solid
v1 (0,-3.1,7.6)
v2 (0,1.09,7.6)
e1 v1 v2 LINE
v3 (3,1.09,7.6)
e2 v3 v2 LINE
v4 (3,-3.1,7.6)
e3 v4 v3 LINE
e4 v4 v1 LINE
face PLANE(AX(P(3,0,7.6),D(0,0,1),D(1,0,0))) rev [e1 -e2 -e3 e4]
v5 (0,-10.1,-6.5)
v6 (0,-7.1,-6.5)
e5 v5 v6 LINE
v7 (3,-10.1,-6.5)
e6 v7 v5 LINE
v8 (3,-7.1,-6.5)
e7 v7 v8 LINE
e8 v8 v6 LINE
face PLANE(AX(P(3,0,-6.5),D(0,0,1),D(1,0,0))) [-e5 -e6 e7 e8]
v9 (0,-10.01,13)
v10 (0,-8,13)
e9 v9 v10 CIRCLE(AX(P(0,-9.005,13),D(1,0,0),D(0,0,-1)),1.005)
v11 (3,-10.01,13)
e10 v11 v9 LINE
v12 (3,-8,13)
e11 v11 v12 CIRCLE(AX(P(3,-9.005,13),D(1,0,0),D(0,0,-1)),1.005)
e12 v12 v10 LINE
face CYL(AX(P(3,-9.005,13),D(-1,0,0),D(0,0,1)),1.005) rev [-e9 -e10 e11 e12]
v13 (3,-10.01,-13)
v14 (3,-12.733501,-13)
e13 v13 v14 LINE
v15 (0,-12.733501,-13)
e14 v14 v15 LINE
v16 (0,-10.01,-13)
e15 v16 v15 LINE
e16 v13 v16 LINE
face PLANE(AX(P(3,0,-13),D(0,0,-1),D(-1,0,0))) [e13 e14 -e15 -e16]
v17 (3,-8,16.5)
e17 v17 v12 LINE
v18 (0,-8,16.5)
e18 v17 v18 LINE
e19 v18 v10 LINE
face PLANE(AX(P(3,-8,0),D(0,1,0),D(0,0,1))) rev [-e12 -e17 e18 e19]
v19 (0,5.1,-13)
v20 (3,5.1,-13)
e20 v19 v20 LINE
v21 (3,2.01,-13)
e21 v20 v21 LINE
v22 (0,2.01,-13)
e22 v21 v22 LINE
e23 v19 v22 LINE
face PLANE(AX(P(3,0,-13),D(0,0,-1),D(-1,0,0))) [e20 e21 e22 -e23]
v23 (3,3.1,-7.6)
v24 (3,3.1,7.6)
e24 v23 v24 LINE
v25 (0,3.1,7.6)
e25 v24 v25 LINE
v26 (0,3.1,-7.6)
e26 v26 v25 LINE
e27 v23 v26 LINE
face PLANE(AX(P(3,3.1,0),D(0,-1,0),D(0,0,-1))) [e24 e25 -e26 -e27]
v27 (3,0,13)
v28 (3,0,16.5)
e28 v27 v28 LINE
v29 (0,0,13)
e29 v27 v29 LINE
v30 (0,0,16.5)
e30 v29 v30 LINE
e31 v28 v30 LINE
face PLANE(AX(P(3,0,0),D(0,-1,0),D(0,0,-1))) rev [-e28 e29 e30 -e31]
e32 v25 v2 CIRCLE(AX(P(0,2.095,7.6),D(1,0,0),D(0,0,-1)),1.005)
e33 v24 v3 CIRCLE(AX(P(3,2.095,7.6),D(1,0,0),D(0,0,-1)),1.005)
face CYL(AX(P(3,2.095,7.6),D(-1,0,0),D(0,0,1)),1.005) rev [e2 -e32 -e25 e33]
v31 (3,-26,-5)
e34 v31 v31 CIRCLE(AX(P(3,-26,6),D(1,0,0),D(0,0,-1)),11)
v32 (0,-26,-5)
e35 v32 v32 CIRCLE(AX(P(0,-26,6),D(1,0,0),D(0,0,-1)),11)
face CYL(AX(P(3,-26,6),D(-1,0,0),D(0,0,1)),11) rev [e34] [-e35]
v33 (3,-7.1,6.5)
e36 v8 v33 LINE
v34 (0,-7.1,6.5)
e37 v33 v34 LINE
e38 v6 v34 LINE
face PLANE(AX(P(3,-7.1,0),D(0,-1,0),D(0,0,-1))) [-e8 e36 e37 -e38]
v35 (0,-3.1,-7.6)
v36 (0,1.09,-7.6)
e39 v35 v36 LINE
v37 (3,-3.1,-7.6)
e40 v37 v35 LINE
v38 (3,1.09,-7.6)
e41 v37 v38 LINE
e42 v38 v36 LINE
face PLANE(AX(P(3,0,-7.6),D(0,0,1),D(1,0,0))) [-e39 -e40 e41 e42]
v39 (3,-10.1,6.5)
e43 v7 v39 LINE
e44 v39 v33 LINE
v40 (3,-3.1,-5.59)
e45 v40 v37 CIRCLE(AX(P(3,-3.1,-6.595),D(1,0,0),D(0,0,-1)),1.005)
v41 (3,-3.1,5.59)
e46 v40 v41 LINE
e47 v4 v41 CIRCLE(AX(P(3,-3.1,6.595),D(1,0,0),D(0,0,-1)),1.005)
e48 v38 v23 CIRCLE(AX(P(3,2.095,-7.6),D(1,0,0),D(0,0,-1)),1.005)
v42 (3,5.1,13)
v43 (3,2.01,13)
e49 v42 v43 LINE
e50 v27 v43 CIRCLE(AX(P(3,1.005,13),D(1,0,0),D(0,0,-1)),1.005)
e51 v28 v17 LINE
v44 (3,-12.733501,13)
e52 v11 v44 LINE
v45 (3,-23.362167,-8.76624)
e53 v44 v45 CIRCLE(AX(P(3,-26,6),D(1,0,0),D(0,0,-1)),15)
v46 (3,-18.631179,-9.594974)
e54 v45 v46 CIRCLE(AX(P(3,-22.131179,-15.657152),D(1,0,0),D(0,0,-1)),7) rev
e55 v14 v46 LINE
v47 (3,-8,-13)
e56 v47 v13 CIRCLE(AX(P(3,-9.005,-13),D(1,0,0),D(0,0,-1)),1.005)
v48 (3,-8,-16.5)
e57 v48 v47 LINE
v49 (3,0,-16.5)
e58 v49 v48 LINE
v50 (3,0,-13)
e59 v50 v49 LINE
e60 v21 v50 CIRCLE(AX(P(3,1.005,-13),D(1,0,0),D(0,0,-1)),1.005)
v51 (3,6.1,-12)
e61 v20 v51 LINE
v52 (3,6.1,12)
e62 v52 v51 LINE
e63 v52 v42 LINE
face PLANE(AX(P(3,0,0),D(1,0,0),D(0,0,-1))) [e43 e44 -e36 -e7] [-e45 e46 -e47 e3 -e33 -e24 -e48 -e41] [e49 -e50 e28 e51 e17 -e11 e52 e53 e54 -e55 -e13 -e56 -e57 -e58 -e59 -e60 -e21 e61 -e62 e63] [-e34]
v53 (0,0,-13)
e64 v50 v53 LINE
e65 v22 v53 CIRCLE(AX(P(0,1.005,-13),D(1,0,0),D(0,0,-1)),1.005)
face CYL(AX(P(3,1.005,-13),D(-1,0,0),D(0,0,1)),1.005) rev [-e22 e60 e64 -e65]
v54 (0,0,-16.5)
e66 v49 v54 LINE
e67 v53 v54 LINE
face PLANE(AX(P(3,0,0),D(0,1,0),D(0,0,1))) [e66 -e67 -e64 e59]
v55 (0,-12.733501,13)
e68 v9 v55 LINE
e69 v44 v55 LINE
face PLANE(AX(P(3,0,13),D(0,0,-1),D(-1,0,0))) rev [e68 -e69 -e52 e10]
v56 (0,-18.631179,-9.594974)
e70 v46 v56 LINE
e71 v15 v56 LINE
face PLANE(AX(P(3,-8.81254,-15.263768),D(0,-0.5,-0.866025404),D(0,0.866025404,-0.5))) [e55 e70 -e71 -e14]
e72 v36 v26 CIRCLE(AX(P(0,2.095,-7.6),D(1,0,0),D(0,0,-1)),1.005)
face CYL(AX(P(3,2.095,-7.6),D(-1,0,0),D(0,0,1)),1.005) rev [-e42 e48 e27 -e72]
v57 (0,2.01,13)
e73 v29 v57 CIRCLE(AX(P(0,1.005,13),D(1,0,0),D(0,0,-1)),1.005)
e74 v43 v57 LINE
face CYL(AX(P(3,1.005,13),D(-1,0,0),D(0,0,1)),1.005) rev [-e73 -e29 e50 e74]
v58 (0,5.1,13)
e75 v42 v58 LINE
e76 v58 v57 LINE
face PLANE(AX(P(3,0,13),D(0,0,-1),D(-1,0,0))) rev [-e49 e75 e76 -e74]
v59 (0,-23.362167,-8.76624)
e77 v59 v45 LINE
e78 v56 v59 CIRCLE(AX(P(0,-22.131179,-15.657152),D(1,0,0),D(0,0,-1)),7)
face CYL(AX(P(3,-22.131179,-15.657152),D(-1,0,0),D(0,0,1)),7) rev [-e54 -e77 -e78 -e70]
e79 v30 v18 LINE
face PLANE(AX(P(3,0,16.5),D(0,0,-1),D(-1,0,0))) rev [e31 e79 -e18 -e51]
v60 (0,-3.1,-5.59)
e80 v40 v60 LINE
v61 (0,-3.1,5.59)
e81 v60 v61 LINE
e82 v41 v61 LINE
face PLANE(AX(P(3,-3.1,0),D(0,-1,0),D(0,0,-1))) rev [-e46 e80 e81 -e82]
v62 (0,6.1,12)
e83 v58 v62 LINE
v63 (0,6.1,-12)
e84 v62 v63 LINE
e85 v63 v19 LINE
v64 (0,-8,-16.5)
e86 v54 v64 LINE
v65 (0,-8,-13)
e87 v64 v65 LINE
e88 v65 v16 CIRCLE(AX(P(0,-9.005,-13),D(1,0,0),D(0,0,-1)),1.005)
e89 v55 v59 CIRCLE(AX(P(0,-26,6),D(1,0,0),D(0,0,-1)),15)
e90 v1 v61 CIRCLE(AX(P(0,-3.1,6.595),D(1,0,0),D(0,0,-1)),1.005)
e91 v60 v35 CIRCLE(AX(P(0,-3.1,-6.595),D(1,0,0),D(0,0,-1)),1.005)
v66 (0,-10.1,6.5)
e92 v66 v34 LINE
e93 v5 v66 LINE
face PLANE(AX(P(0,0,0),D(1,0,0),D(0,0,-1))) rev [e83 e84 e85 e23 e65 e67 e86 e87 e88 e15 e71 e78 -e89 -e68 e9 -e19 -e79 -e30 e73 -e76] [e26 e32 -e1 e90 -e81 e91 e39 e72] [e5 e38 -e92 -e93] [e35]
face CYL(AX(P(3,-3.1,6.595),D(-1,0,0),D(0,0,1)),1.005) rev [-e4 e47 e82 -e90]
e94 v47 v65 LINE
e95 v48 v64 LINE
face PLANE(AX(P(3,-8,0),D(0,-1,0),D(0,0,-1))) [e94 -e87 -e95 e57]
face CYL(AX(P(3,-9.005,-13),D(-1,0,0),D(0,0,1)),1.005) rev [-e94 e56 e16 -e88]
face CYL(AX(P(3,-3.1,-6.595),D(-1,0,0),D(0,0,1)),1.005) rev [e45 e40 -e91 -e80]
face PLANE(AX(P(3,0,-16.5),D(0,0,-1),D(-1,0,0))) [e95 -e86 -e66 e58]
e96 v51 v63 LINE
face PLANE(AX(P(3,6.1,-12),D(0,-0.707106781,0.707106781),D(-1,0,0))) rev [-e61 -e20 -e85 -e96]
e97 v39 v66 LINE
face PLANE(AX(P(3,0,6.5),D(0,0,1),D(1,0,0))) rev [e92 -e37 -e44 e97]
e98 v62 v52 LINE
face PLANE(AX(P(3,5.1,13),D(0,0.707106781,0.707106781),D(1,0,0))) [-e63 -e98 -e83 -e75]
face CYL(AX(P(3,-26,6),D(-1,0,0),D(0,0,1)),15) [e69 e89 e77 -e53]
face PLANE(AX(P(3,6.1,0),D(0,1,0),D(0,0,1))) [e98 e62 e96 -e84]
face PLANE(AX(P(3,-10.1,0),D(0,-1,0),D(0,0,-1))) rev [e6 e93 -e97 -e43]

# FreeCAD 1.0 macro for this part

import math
import FreeCAD as App
import Part
import Sketcher
from FreeCAD import Vector
Q = App.Units.Quantity


def edges_at(feature, points):
    """Names of the edges that pass closest to the given points."""
    edges = feature.Shape.Edges
    near = lambda p: min(range(len(edges)), key=lambda i: edges[i].distToShape(Part.Vertex(*p))[0])
    return sorted({f"Edge{near(p) + 1}" for p in points})


def add_polygon(sketch, points):
    """Adds a closed chain of lines whose ends are joined by coincident constraints."""
    first, n = sketch.GeometryCount, len(points)
    for a, b in zip(points, points[1:] + points[:1]):
        sketch.addGeometry(Part.LineSegment(App.Vector(*a, 0), App.Vector(*b, 0)), False)
    for i in range(n):
        sketch.addConstraint(Sketcher.Constraint("Coincident", first + i, 2, first + (i + 1) % n, 1))

doc = App.newDocument("Part")
body = doc.addObject("PartDesign::Body", "Body")

# Sketch on YZ plane
sketch1 = doc.addObject("Sketcher::SketchObject", "Sketch")
body.addObject(sketch1)
sketch1.AttachmentSupport = (doc.YZ_Plane, [""])
sketch1.MapMode = "FlatFace"
sketch1.addGeometry(Part.LineSegment(Vector(6.1, -13, 0), Vector(6.1, 13, 0)), False)  # 0
sketch1.addGeometry(Part.LineSegment(Vector(6.1, 13, 0), Vector(2, 13, 0)), False)  # 1
sketch1.addGeometry(Part.ArcOfCircle(Part.Circle(Vector(1, 13, 0), Vector(0, 0, 1), 1), math.radians(-90), math.radians(0)), False)  # 2
sketch1.addGeometry(Part.ArcOfCircle(Part.Circle(Vector(1, 13, 0), Vector(0, 0, 1), 1), math.radians(180), math.radians(270)), False)  # 3
sketch1.addGeometry(Part.LineSegment(Vector(0, 13, 0), Vector(0, 16.5, 0)), False)  # 4
sketch1.addGeometry(Part.LineSegment(Vector(0, 16.5, 0), Vector(-8, 16.5, 0)), False)  # 5
sketch1.addGeometry(Part.LineSegment(Vector(-8, 16.5, 0), Vector(-8, 13, 0)), False)  # 6
sketch1.addGeometry(Part.ArcOfCircle(Part.Circle(Vector(-9, 13, 0), Vector(0, 0, 1), 1), math.radians(-90), math.radians(0)), False)  # 7
sketch1.addGeometry(Part.ArcOfCircle(Part.Circle(Vector(-9, 13, 0), Vector(0, 0, 1), 1), math.radians(180), math.radians(270)), False)  # 8
sketch1.addGeometry(Part.LineSegment(Vector(-10, 13, 0), Vector(-12.7, 13, 0)), False)  # 9
sketch1.addGeometry(Part.ArcOfCircle(Part.Circle(Vector(-26, 6, 0), Vector(0, 0, 1), 15), math.radians(28), math.radians(289)), False)  # 10
sketch1.addGeometry(Part.LineSegment(Vector(-21.1, -8.2, 0), Vector(-12.7, -13, 0)), False)  # 11
sketch1.addGeometry(Part.LineSegment(Vector(-12.7, -13, 0), Vector(-10, -13, 0)), False)  # 12
sketch1.addGeometry(Part.ArcOfCircle(Part.Circle(Vector(-9, -13, 0), Vector(0, 0, 1), 1), math.radians(0), math.radians(180)), False)  # 13
sketch1.addGeometry(Part.LineSegment(Vector(-8, -13, 0), Vector(-8, -16.5, 0)), False)  # 14
sketch1.addGeometry(Part.LineSegment(Vector(-8, -16.5, 0), Vector(0, -16.5, 0)), False)  # 15
sketch1.addGeometry(Part.LineSegment(Vector(0, -16.5, 0), Vector(0, -13, 0)), False)  # 16
sketch1.addGeometry(Part.ArcOfCircle(Part.Circle(Vector(1, -13, 0), Vector(0, 0, 1), 1), math.radians(0), math.radians(180)), False)  # 17
sketch1.addGeometry(Part.LineSegment(Vector(2, -13, 0), Vector(6.1, -13, 0)), False)  # 18
sketch1.addGeometry(Part.Circle(Vector(-26, 6, 0), Vector(0, 0, 1), 11), False)  # 19
add_polygon(sketch1, [(-10.1, -6.5), (-10.1, 6.5), (-7.1, 6.5), (-7.1, -6.5)])  # lines 20-23
sketch1.addGeometry(Part.ArcOfCircle(Part.Circle(Vector(-3.1, -6.6, 0), Vector(0, 0, 1), 1), math.radians(90), math.radians(270)), False)  # 24
sketch1.addGeometry(Part.LineSegment(Vector(-3.1, -5.6, 0), Vector(-3.1, 5.6, 0)), False)  # 25
sketch1.addGeometry(Part.ArcOfCircle(Part.Circle(Vector(-3.1, 6.6, 0), Vector(0, 0, 1), 1), math.radians(90), math.radians(270)), False)  # 26
sketch1.addGeometry(Part.LineSegment(Vector(-3.1, 7.6, 0), Vector(1.1, 7.6, 0)), False)  # 27
sketch1.addGeometry(Part.ArcOfCircle(Part.Circle(Vector(2.1, 7.6, 0), Vector(0, 0, 1), 1), math.radians(0), math.radians(180)), False)  # 28
sketch1.addGeometry(Part.LineSegment(Vector(3.1, 7.6, 0), Vector(3.1, -7.6, 0)), False)  # 29
sketch1.addGeometry(Part.ArcOfCircle(Part.Circle(Vector(2.1, -7.6, 0), Vector(0, 0, 1), 1), math.radians(-90), math.radians(0)), False)  # 30
sketch1.addGeometry(Part.ArcOfCircle(Part.Circle(Vector(2.1, -7.6, 0), Vector(0, 0, 1), 1), math.radians(180), math.radians(270)), False)  # 31
sketch1.addGeometry(Part.LineSegment(Vector(1.1, -7.6, 0), Vector(-3.1, -7.6, 0)), False)  # 32
sketch1.addConstraint([
    Sketcher.Constraint("Coincident", 0, 2, 1, 1),
    Sketcher.Constraint("Coincident", 1, 2, 2, 2),
    Sketcher.Constraint("Tangent", 2, 1, 3, 2),
    Sketcher.Constraint("Tangent", 3, 1, 4, 1),
    Sketcher.Constraint("Coincident", 4, 2, 5, 1),
    Sketcher.Constraint("Coincident", 5, 2, 6, 1),
    Sketcher.Constraint("Tangent", 6, 2, 7, 2),
    Sketcher.Constraint("Tangent", 7, 1, 8, 2),
    Sketcher.Constraint("Coincident", 8, 1, 9, 1),
    Sketcher.Constraint("Coincident", 9, 2, 10, 1),
    Sketcher.Constraint("Coincident", 10, 2, 11, 1),
    Sketcher.Constraint("Coincident", 11, 2, 12, 1),
    Sketcher.Constraint("Coincident", 12, 2, 13, 2),
    Sketcher.Constraint("Tangent", 13, 1, 14, 1),
    Sketcher.Constraint("Coincident", 14, 2, 15, 1),
    Sketcher.Constraint("Coincident", 15, 2, 16, 1),
    Sketcher.Constraint("Tangent", 16, 2, 17, 2),
    Sketcher.Constraint("Coincident", 17, 1, 18, 1),
    Sketcher.Constraint("Coincident", 18, 2, 0, 1),
    Sketcher.Constraint("Coincident", 24, 1, 25, 1),
    Sketcher.Constraint("Coincident", 25, 2, 26, 2),
    Sketcher.Constraint("Tangent", 26, 1, 27, 1),
    Sketcher.Constraint("Coincident", 27, 2, 28, 2),
    Sketcher.Constraint("Tangent", 28, 1, 29, 1),
    Sketcher.Constraint("Tangent", 29, 2, 30, 2),
    Sketcher.Constraint("Tangent", 30, 1, 31, 2),
    Sketcher.Constraint("Coincident", 31, 1, 32, 1),
    Sketcher.Constraint("Tangent", 32, 2, 24, 2),
    Sketcher.Constraint("Vertical", 0),
    Sketcher.Constraint("Horizontal", 1),
    Sketcher.Constraint("Vertical", 4),
    Sketcher.Constraint("Horizontal", 5),
    Sketcher.Constraint("Vertical", 6),
    Sketcher.Constraint("Horizontal", 9),
    Sketcher.Constraint("Horizontal", 12),
    Sketcher.Constraint("Vertical", 14),
    Sketcher.Constraint("Horizontal", 15),
    Sketcher.Constraint("Vertical", 16),
    Sketcher.Constraint("Horizontal", 18),
    Sketcher.Constraint("Vertical", 20),
    Sketcher.Constraint("Horizontal", 21),
    Sketcher.Constraint("Vertical", 22),
    Sketcher.Constraint("Horizontal", 23),
    Sketcher.Constraint("Vertical", 25),
    Sketcher.Constraint("Horizontal", 27),
    Sketcher.Constraint("Vertical", 29),
    Sketcher.Constraint("Horizontal", 32),
    Sketcher.Constraint("Coincident", 19, 3, 10, 3),
    Sketcher.Constraint("Equal", 2, 3),
    Sketcher.Constraint("Equal", 3, 7),
    Sketcher.Constraint("Equal", 7, 8),
    Sketcher.Constraint("Equal", 8, 13),
    Sketcher.Constraint("Equal", 13, 17),
    Sketcher.Constraint("Equal", 17, 24),
    Sketcher.Constraint("Equal", 24, 26),
    Sketcher.Constraint("Equal", 26, 28),
    Sketcher.Constraint("Equal", 28, 30),
    Sketcher.Constraint("Equal", 30, 31),
    Sketcher.Constraint("Symmetric", 4, 2, 15, 2, -1, 1),
    Sketcher.Constraint("Symmetric", 26, 1, 29, 2, -1, 1),
    Sketcher.Constraint("Symmetric", 28, 1, 32, 2, -1, 1),
    Sketcher.Constraint("Symmetric", 7, 3, 13, 3, -1),
    Sketcher.Constraint("Symmetric", 2, 3, 17, 3, -1),
    Sketcher.Constraint("Symmetric", 9, 2, 11, 2, -1),
    Sketcher.Constraint("Horizontal", 3, 3, 7, 3),
    Sketcher.Constraint("Horizontal", 8, 3, 0, 2),
    Sketcher.Constraint("Horizontal", 6, 2, 8, 1),
    Sketcher.Constraint("Horizontal", 16, 2, 17, 1),
    Sketcher.Constraint("Horizontal", 28, 3, 26, 1),
    Sketcher.Constraint("Vertical", 17, 3, 2, 1),
    Sketcher.Constraint("Vertical", 13, 3, 7, 1),
    Sketcher.Constraint("Vertical", 26, 3, 24, 1),
    Sketcher.Constraint("Vertical", 31, 3, 30, 1),
    Sketcher.Constraint("Diameter", 19, 22.0),
    Sketcher.Constraint("Radius", 10, 15.0),
    Sketcher.Constraint("DistanceX", 5, 2, 5, 1, 8.0),
    Sketcher.Constraint("DistanceX", 21, 1, 21, 2, 3.0),
    Sketcher.Constraint("DistanceY", 0, 1, 0, 2, 26.0),
    Sketcher.Constraint("DistanceY", 20, 1, 20, 2, 13.0),
    Sketcher.Constraint("Angle", 11, Q("-30 deg")),
    Sketcher.Constraint("DistanceY", 4, 1, 4, 2, 3.5),
    Sketcher.Constraint("DistanceY", 29, 2, 29, 1, 15.2),
    Sketcher.Constraint("DistanceX", 10, 3, -1, 1, 26.0),
    Sketcher.Constraint("DistanceY", -1, 1, 10, 3, 6.0),
    Sketcher.Constraint("Radius", 2, 1.005),
    Sketcher.Constraint("DistanceX", 21, 2, 26, 3, 4.0),
    Sketcher.Constraint("DistanceX", 29, 2, 18, 2, 3.0),
    Sketcher.Constraint("DistanceX", 1, 2, 1, 1, 4.09),
    Sketcher.Constraint("DistanceY", -1, 1, 20, 2, 6.5),
])
pad1 = doc.addObject("PartDesign::Pad", "Pad")
body.addObject(pad1)
pad1.Profile = sketch1
pad1.Length = 3
doc.recompute()

fillet = doc.addObject("PartDesign::Fillet", "Fillet")
body.addObject(fillet)
fillet.Base = (pad1, edges_at(pad1, [(1.5, -21.092, -8.174)]))
fillet.Radius = 7
doc.recompute()

chamfer = doc.addObject("PartDesign::Chamfer", "Chamfer")
body.addObject(chamfer)
chamfer.Base = (fillet, edges_at(fillet, [(1.5, 6.1, 13), (1.5, 6.1, -13)]))
chamfer.Size = 1

doc.recompute()
